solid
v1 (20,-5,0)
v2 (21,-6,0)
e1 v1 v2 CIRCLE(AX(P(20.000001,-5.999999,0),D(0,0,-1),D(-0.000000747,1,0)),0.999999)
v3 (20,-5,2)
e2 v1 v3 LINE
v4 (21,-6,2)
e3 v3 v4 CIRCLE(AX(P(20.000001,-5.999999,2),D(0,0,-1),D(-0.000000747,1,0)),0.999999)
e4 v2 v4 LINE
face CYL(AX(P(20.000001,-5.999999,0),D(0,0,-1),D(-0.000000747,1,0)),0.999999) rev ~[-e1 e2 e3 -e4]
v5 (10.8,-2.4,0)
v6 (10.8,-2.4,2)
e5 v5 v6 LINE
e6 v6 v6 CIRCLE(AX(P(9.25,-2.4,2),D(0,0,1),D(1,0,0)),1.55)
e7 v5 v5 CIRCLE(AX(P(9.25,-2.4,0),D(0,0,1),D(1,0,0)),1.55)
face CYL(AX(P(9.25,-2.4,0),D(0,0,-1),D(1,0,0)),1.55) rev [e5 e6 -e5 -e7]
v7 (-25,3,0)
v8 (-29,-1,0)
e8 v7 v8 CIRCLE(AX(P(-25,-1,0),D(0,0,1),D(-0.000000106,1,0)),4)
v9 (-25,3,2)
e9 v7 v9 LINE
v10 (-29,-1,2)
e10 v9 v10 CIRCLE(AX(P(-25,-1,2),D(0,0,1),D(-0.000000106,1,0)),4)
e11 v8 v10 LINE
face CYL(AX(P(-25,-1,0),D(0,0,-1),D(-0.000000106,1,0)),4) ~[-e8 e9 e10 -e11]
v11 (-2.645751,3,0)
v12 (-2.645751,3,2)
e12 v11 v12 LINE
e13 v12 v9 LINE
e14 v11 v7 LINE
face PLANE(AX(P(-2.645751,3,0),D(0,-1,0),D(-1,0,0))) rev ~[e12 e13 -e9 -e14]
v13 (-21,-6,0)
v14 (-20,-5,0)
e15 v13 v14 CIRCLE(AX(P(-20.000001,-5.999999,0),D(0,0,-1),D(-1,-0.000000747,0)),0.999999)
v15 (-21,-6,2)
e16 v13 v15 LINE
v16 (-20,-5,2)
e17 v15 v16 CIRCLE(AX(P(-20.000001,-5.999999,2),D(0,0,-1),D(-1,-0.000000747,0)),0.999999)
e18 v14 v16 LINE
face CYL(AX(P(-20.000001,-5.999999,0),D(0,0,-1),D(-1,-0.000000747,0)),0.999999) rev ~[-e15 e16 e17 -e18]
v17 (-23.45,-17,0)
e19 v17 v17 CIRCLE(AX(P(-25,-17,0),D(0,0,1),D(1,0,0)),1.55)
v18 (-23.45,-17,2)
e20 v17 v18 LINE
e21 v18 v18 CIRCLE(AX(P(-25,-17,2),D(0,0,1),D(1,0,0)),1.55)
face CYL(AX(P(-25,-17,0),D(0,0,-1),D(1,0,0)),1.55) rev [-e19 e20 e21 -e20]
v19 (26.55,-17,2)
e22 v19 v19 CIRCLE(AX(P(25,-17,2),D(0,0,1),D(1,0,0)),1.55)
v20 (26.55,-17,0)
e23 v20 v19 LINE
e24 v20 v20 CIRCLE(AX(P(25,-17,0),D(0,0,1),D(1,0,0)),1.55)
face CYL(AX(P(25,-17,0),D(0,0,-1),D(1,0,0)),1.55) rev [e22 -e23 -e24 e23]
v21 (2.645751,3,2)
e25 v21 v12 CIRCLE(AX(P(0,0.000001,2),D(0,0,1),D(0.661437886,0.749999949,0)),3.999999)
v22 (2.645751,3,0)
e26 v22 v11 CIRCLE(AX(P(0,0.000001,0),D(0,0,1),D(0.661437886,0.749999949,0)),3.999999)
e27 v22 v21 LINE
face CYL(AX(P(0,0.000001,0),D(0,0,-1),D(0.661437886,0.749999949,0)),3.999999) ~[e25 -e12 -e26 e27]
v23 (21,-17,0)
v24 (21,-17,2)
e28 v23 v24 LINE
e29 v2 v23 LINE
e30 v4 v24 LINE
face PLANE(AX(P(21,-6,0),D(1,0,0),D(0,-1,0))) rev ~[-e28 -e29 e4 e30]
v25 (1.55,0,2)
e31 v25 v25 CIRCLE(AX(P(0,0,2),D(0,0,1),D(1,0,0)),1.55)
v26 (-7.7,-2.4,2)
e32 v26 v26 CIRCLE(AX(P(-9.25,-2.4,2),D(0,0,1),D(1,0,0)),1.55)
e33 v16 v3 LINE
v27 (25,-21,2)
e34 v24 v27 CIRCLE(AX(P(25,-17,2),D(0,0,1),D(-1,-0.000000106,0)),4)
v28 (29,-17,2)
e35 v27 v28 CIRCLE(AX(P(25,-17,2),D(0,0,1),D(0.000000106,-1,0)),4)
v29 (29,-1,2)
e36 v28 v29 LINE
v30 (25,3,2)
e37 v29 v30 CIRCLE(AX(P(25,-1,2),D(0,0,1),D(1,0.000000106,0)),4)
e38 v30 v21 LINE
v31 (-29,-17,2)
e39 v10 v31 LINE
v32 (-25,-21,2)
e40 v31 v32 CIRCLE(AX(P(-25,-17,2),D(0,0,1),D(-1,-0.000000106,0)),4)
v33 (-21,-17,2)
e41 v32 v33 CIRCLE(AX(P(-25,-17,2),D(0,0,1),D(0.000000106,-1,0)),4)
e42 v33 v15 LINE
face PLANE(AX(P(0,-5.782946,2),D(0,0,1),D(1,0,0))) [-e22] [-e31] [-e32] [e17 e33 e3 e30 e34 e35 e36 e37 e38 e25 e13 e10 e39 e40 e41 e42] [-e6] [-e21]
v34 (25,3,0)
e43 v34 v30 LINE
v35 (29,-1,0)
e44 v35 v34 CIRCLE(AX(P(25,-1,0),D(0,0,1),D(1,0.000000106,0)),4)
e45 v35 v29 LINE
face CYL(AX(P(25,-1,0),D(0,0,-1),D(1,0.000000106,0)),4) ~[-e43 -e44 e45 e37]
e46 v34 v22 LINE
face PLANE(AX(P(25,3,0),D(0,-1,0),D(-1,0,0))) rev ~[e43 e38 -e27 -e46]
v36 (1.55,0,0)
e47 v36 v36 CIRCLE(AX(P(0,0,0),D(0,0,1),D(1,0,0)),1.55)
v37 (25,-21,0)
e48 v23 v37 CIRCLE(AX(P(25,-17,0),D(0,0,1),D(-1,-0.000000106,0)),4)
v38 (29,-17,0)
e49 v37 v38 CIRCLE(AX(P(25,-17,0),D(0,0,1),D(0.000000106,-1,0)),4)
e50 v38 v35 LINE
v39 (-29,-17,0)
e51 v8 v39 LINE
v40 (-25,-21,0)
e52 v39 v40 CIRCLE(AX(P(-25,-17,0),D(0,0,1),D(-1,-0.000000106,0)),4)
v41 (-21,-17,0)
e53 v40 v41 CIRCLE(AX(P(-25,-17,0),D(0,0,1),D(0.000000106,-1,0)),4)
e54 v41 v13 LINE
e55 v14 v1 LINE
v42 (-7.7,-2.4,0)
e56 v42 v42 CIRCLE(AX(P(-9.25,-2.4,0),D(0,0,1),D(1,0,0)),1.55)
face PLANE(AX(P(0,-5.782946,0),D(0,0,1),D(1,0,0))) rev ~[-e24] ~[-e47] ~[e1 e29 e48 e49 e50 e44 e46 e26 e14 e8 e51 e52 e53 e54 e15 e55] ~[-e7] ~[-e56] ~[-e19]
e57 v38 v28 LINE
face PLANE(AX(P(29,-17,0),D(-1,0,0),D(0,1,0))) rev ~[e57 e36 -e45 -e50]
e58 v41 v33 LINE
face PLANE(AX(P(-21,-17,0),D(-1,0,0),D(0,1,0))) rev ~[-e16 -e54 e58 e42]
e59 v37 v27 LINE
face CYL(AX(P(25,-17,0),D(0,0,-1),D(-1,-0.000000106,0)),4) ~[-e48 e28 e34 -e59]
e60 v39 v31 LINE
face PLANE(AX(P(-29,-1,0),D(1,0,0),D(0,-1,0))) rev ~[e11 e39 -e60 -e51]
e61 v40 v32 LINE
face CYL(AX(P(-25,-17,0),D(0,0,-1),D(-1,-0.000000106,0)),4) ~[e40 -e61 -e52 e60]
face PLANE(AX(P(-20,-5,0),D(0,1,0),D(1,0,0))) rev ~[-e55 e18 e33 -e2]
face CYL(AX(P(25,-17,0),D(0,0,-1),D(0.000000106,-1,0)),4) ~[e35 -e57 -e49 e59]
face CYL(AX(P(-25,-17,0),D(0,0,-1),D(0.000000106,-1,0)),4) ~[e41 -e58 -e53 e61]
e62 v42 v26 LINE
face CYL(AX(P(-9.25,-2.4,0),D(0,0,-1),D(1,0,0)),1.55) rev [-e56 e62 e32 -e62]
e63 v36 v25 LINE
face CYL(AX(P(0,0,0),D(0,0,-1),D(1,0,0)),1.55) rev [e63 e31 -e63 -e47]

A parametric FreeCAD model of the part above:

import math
import FreeCAD as App
import Part
import Sketcher

V = App.Vector
Q = App.Units.Quantity

doc = App.newDocument("Part")
body = doc.addObject("PartDesign::Body", "Body")

sketch1 = doc.addObject("Sketcher::SketchObject", "Sketch")
body.addObject(sketch1)
sketch1.AttachmentSupport = (doc.XY_Plane, [""])
sketch1.MapMode = "FlatFace"
sketch1.addGeometry([
    Part.LineSegment(V(-20, -5, 0), V(20, -5, 0)),
    Part.ArcOfCircle(Part.Circle(V(20, -6, 0), V(0, 0, 1), 1), math.radians(0), math.radians(90)),
    Part.LineSegment(V(21, -6, 0), V(21, -17, 0)),
    Part.ArcOfCircle(Part.Circle(V(25, -17, 0), V(0, 0, 1), 4), math.radians(-180), math.radians(-90)),
    Part.ArcOfCircle(Part.Circle(V(25, -17, 0), V(0, 0, 1), 4), math.radians(-90), math.radians(0)),
    Part.LineSegment(V(29, -17, 0), V(29, -1, 0)),
    Part.ArcOfCircle(Part.Circle(V(25, -1, 0), V(0, 0, 1), 4), math.radians(0), math.radians(90)),
    Part.LineSegment(V(25, 3, 0), V(2.6, 3, 0)),
    Part.ArcOfCircle(Part.Circle(V(0, 0, 0), V(0, 0, 1), 4), math.radians(49), math.radians(131)),
    Part.LineSegment(V(-2.6, 3, 0), V(-25, 3, 0)),
    Part.ArcOfCircle(Part.Circle(V(-25, -1, 0), V(0, 0, 1), 4), math.radians(90), math.radians(180)),
    Part.LineSegment(V(-29, -1, 0), V(-29, -17, 0)),
    Part.ArcOfCircle(Part.Circle(V(-25, -17, 0), V(0, 0, 1), 4), math.radians(-180), math.radians(-90)),
    Part.ArcOfCircle(Part.Circle(V(-25, -17, 0), V(0, 0, 1), 4), math.radians(-90), math.radians(0)),
    Part.LineSegment(V(-21, -17, 0), V(-21, -6, 0)),
    Part.ArcOfCircle(Part.Circle(V(-20, -6, 0), V(0, 0, 1), 1), math.radians(90), math.radians(180)),
    Part.Circle(V(-25, -17, 0), V(0, 0, 1), 1.6),
    Part.Circle(V(25, -17, 0), V(0, 0, 1), 1.6),
    Part.Circle(V(-9.2, -2.4, 0), V(0, 0, 1), 1.6),
    Part.Circle(V(9.2, -2.4, 0), V(0, 0, 1), 1.6),
    Part.Circle(V(0, 0, 0), V(0, 0, 1), 1.6),
], False)
sketch1.addConstraint([
    Sketcher.Constraint("Tangent", 0, 2, 1, 2),
    Sketcher.Constraint("Tangent", 1, 1, 2, 1),
    Sketcher.Constraint("Tangent", 2, 2, 3, 1),
    Sketcher.Constraint("Tangent", 3, 2, 4, 1),
    Sketcher.Constraint("Tangent", 4, 2, 5, 1),
    Sketcher.Constraint("Tangent", 5, 2, 6, 1),
    Sketcher.Constraint("Tangent", 6, 2, 7, 1),
    Sketcher.Constraint("Coincident", 7, 2, 8, 1),
    Sketcher.Constraint("Coincident", 8, 2, 9, 1),
    Sketcher.Constraint("Tangent", 9, 2, 10, 1),
    Sketcher.Constraint("Tangent", 10, 2, 11, 1),
    Sketcher.Constraint("Tangent", 11, 2, 12, 1),
    Sketcher.Constraint("Tangent", 12, 2, 13, 1),
    Sketcher.Constraint("Tangent", 13, 2, 14, 1),
    Sketcher.Constraint("Tangent", 14, 2, 15, 2),
    Sketcher.Constraint("Tangent", 15, 1, 0, 1),
    Sketcher.Constraint("Horizontal", 0),
    Sketcher.Constraint("Vertical", 2),
    Sketcher.Constraint("Vertical", 5),
    Sketcher.Constraint("Horizontal", 7),
    Sketcher.Constraint("Horizontal", 9),
    Sketcher.Constraint("Vertical", 11),
    Sketcher.Constraint("Vertical", 14),
    Sketcher.Constraint("Coincident", 8, 3, -1, 1),
    Sketcher.Constraint("Coincident", 20, 3, -1, 1),
    Sketcher.Constraint("Coincident", 16, 3, 12, 3),
    Sketcher.Constraint("Coincident", 17, 3, 3, 3),
    Sketcher.Constraint("Equal", 3, 4),
    Sketcher.Constraint("Equal", 4, 6),
    Sketcher.Constraint("Equal", 6, 8),
    Sketcher.Constraint("Equal", 8, 10),
    Sketcher.Constraint("Equal", 10, 12),
    Sketcher.Constraint("Equal", 12, 13),
    Sketcher.Constraint("Equal", 1, 15),
    Sketcher.Constraint("Equal", 16, 17),
    Sketcher.Constraint("Equal", 17, 18),
    Sketcher.Constraint("Equal", 18, 19),
    Sketcher.Constraint("Equal", 19, 20),
    Sketcher.Constraint("Symmetric", 6, 3, 10, 3, -2),
    Sketcher.Constraint("Symmetric", 18, 3, 19, 3, -2),
    Sketcher.Constraint("Symmetric", 3, 2, 12, 2, -2),
    Sketcher.Constraint("Vertical", 17, 3, 3, 2),
    Sketcher.Constraint("Radius", 1, Q("0.999999 mm")),
    Sketcher.Constraint("Radius", 3, Q("4 mm")),
    Sketcher.Constraint("Diameter", 16, Q("3.1 mm")),
    Sketcher.Constraint("DistanceX", 0, 1, 0, 2, Q("40 mm")),
    Sketcher.Constraint("DistanceY", 2, 2, 2, 1, Q("11 mm")),
    Sketcher.Constraint("DistanceY", 5, 1, 5, 2, Q("16 mm")),
    Sketcher.Constraint("DistanceY", 1, 3, -1, 1, Q("5.999999 mm")),
    Sketcher.Constraint("DistanceY", 18, 3, -1, 1, Q("2.4 mm")),
    Sketcher.Constraint("DistanceX", 18, 3, 19, 3, Q("18.5 mm")),
])
pad1 = doc.addObject("PartDesign::Pad", "Pad")
body.addObject(pad1)
pad1.Profile = sketch1
pad1.Length = 2

doc.recompute()
